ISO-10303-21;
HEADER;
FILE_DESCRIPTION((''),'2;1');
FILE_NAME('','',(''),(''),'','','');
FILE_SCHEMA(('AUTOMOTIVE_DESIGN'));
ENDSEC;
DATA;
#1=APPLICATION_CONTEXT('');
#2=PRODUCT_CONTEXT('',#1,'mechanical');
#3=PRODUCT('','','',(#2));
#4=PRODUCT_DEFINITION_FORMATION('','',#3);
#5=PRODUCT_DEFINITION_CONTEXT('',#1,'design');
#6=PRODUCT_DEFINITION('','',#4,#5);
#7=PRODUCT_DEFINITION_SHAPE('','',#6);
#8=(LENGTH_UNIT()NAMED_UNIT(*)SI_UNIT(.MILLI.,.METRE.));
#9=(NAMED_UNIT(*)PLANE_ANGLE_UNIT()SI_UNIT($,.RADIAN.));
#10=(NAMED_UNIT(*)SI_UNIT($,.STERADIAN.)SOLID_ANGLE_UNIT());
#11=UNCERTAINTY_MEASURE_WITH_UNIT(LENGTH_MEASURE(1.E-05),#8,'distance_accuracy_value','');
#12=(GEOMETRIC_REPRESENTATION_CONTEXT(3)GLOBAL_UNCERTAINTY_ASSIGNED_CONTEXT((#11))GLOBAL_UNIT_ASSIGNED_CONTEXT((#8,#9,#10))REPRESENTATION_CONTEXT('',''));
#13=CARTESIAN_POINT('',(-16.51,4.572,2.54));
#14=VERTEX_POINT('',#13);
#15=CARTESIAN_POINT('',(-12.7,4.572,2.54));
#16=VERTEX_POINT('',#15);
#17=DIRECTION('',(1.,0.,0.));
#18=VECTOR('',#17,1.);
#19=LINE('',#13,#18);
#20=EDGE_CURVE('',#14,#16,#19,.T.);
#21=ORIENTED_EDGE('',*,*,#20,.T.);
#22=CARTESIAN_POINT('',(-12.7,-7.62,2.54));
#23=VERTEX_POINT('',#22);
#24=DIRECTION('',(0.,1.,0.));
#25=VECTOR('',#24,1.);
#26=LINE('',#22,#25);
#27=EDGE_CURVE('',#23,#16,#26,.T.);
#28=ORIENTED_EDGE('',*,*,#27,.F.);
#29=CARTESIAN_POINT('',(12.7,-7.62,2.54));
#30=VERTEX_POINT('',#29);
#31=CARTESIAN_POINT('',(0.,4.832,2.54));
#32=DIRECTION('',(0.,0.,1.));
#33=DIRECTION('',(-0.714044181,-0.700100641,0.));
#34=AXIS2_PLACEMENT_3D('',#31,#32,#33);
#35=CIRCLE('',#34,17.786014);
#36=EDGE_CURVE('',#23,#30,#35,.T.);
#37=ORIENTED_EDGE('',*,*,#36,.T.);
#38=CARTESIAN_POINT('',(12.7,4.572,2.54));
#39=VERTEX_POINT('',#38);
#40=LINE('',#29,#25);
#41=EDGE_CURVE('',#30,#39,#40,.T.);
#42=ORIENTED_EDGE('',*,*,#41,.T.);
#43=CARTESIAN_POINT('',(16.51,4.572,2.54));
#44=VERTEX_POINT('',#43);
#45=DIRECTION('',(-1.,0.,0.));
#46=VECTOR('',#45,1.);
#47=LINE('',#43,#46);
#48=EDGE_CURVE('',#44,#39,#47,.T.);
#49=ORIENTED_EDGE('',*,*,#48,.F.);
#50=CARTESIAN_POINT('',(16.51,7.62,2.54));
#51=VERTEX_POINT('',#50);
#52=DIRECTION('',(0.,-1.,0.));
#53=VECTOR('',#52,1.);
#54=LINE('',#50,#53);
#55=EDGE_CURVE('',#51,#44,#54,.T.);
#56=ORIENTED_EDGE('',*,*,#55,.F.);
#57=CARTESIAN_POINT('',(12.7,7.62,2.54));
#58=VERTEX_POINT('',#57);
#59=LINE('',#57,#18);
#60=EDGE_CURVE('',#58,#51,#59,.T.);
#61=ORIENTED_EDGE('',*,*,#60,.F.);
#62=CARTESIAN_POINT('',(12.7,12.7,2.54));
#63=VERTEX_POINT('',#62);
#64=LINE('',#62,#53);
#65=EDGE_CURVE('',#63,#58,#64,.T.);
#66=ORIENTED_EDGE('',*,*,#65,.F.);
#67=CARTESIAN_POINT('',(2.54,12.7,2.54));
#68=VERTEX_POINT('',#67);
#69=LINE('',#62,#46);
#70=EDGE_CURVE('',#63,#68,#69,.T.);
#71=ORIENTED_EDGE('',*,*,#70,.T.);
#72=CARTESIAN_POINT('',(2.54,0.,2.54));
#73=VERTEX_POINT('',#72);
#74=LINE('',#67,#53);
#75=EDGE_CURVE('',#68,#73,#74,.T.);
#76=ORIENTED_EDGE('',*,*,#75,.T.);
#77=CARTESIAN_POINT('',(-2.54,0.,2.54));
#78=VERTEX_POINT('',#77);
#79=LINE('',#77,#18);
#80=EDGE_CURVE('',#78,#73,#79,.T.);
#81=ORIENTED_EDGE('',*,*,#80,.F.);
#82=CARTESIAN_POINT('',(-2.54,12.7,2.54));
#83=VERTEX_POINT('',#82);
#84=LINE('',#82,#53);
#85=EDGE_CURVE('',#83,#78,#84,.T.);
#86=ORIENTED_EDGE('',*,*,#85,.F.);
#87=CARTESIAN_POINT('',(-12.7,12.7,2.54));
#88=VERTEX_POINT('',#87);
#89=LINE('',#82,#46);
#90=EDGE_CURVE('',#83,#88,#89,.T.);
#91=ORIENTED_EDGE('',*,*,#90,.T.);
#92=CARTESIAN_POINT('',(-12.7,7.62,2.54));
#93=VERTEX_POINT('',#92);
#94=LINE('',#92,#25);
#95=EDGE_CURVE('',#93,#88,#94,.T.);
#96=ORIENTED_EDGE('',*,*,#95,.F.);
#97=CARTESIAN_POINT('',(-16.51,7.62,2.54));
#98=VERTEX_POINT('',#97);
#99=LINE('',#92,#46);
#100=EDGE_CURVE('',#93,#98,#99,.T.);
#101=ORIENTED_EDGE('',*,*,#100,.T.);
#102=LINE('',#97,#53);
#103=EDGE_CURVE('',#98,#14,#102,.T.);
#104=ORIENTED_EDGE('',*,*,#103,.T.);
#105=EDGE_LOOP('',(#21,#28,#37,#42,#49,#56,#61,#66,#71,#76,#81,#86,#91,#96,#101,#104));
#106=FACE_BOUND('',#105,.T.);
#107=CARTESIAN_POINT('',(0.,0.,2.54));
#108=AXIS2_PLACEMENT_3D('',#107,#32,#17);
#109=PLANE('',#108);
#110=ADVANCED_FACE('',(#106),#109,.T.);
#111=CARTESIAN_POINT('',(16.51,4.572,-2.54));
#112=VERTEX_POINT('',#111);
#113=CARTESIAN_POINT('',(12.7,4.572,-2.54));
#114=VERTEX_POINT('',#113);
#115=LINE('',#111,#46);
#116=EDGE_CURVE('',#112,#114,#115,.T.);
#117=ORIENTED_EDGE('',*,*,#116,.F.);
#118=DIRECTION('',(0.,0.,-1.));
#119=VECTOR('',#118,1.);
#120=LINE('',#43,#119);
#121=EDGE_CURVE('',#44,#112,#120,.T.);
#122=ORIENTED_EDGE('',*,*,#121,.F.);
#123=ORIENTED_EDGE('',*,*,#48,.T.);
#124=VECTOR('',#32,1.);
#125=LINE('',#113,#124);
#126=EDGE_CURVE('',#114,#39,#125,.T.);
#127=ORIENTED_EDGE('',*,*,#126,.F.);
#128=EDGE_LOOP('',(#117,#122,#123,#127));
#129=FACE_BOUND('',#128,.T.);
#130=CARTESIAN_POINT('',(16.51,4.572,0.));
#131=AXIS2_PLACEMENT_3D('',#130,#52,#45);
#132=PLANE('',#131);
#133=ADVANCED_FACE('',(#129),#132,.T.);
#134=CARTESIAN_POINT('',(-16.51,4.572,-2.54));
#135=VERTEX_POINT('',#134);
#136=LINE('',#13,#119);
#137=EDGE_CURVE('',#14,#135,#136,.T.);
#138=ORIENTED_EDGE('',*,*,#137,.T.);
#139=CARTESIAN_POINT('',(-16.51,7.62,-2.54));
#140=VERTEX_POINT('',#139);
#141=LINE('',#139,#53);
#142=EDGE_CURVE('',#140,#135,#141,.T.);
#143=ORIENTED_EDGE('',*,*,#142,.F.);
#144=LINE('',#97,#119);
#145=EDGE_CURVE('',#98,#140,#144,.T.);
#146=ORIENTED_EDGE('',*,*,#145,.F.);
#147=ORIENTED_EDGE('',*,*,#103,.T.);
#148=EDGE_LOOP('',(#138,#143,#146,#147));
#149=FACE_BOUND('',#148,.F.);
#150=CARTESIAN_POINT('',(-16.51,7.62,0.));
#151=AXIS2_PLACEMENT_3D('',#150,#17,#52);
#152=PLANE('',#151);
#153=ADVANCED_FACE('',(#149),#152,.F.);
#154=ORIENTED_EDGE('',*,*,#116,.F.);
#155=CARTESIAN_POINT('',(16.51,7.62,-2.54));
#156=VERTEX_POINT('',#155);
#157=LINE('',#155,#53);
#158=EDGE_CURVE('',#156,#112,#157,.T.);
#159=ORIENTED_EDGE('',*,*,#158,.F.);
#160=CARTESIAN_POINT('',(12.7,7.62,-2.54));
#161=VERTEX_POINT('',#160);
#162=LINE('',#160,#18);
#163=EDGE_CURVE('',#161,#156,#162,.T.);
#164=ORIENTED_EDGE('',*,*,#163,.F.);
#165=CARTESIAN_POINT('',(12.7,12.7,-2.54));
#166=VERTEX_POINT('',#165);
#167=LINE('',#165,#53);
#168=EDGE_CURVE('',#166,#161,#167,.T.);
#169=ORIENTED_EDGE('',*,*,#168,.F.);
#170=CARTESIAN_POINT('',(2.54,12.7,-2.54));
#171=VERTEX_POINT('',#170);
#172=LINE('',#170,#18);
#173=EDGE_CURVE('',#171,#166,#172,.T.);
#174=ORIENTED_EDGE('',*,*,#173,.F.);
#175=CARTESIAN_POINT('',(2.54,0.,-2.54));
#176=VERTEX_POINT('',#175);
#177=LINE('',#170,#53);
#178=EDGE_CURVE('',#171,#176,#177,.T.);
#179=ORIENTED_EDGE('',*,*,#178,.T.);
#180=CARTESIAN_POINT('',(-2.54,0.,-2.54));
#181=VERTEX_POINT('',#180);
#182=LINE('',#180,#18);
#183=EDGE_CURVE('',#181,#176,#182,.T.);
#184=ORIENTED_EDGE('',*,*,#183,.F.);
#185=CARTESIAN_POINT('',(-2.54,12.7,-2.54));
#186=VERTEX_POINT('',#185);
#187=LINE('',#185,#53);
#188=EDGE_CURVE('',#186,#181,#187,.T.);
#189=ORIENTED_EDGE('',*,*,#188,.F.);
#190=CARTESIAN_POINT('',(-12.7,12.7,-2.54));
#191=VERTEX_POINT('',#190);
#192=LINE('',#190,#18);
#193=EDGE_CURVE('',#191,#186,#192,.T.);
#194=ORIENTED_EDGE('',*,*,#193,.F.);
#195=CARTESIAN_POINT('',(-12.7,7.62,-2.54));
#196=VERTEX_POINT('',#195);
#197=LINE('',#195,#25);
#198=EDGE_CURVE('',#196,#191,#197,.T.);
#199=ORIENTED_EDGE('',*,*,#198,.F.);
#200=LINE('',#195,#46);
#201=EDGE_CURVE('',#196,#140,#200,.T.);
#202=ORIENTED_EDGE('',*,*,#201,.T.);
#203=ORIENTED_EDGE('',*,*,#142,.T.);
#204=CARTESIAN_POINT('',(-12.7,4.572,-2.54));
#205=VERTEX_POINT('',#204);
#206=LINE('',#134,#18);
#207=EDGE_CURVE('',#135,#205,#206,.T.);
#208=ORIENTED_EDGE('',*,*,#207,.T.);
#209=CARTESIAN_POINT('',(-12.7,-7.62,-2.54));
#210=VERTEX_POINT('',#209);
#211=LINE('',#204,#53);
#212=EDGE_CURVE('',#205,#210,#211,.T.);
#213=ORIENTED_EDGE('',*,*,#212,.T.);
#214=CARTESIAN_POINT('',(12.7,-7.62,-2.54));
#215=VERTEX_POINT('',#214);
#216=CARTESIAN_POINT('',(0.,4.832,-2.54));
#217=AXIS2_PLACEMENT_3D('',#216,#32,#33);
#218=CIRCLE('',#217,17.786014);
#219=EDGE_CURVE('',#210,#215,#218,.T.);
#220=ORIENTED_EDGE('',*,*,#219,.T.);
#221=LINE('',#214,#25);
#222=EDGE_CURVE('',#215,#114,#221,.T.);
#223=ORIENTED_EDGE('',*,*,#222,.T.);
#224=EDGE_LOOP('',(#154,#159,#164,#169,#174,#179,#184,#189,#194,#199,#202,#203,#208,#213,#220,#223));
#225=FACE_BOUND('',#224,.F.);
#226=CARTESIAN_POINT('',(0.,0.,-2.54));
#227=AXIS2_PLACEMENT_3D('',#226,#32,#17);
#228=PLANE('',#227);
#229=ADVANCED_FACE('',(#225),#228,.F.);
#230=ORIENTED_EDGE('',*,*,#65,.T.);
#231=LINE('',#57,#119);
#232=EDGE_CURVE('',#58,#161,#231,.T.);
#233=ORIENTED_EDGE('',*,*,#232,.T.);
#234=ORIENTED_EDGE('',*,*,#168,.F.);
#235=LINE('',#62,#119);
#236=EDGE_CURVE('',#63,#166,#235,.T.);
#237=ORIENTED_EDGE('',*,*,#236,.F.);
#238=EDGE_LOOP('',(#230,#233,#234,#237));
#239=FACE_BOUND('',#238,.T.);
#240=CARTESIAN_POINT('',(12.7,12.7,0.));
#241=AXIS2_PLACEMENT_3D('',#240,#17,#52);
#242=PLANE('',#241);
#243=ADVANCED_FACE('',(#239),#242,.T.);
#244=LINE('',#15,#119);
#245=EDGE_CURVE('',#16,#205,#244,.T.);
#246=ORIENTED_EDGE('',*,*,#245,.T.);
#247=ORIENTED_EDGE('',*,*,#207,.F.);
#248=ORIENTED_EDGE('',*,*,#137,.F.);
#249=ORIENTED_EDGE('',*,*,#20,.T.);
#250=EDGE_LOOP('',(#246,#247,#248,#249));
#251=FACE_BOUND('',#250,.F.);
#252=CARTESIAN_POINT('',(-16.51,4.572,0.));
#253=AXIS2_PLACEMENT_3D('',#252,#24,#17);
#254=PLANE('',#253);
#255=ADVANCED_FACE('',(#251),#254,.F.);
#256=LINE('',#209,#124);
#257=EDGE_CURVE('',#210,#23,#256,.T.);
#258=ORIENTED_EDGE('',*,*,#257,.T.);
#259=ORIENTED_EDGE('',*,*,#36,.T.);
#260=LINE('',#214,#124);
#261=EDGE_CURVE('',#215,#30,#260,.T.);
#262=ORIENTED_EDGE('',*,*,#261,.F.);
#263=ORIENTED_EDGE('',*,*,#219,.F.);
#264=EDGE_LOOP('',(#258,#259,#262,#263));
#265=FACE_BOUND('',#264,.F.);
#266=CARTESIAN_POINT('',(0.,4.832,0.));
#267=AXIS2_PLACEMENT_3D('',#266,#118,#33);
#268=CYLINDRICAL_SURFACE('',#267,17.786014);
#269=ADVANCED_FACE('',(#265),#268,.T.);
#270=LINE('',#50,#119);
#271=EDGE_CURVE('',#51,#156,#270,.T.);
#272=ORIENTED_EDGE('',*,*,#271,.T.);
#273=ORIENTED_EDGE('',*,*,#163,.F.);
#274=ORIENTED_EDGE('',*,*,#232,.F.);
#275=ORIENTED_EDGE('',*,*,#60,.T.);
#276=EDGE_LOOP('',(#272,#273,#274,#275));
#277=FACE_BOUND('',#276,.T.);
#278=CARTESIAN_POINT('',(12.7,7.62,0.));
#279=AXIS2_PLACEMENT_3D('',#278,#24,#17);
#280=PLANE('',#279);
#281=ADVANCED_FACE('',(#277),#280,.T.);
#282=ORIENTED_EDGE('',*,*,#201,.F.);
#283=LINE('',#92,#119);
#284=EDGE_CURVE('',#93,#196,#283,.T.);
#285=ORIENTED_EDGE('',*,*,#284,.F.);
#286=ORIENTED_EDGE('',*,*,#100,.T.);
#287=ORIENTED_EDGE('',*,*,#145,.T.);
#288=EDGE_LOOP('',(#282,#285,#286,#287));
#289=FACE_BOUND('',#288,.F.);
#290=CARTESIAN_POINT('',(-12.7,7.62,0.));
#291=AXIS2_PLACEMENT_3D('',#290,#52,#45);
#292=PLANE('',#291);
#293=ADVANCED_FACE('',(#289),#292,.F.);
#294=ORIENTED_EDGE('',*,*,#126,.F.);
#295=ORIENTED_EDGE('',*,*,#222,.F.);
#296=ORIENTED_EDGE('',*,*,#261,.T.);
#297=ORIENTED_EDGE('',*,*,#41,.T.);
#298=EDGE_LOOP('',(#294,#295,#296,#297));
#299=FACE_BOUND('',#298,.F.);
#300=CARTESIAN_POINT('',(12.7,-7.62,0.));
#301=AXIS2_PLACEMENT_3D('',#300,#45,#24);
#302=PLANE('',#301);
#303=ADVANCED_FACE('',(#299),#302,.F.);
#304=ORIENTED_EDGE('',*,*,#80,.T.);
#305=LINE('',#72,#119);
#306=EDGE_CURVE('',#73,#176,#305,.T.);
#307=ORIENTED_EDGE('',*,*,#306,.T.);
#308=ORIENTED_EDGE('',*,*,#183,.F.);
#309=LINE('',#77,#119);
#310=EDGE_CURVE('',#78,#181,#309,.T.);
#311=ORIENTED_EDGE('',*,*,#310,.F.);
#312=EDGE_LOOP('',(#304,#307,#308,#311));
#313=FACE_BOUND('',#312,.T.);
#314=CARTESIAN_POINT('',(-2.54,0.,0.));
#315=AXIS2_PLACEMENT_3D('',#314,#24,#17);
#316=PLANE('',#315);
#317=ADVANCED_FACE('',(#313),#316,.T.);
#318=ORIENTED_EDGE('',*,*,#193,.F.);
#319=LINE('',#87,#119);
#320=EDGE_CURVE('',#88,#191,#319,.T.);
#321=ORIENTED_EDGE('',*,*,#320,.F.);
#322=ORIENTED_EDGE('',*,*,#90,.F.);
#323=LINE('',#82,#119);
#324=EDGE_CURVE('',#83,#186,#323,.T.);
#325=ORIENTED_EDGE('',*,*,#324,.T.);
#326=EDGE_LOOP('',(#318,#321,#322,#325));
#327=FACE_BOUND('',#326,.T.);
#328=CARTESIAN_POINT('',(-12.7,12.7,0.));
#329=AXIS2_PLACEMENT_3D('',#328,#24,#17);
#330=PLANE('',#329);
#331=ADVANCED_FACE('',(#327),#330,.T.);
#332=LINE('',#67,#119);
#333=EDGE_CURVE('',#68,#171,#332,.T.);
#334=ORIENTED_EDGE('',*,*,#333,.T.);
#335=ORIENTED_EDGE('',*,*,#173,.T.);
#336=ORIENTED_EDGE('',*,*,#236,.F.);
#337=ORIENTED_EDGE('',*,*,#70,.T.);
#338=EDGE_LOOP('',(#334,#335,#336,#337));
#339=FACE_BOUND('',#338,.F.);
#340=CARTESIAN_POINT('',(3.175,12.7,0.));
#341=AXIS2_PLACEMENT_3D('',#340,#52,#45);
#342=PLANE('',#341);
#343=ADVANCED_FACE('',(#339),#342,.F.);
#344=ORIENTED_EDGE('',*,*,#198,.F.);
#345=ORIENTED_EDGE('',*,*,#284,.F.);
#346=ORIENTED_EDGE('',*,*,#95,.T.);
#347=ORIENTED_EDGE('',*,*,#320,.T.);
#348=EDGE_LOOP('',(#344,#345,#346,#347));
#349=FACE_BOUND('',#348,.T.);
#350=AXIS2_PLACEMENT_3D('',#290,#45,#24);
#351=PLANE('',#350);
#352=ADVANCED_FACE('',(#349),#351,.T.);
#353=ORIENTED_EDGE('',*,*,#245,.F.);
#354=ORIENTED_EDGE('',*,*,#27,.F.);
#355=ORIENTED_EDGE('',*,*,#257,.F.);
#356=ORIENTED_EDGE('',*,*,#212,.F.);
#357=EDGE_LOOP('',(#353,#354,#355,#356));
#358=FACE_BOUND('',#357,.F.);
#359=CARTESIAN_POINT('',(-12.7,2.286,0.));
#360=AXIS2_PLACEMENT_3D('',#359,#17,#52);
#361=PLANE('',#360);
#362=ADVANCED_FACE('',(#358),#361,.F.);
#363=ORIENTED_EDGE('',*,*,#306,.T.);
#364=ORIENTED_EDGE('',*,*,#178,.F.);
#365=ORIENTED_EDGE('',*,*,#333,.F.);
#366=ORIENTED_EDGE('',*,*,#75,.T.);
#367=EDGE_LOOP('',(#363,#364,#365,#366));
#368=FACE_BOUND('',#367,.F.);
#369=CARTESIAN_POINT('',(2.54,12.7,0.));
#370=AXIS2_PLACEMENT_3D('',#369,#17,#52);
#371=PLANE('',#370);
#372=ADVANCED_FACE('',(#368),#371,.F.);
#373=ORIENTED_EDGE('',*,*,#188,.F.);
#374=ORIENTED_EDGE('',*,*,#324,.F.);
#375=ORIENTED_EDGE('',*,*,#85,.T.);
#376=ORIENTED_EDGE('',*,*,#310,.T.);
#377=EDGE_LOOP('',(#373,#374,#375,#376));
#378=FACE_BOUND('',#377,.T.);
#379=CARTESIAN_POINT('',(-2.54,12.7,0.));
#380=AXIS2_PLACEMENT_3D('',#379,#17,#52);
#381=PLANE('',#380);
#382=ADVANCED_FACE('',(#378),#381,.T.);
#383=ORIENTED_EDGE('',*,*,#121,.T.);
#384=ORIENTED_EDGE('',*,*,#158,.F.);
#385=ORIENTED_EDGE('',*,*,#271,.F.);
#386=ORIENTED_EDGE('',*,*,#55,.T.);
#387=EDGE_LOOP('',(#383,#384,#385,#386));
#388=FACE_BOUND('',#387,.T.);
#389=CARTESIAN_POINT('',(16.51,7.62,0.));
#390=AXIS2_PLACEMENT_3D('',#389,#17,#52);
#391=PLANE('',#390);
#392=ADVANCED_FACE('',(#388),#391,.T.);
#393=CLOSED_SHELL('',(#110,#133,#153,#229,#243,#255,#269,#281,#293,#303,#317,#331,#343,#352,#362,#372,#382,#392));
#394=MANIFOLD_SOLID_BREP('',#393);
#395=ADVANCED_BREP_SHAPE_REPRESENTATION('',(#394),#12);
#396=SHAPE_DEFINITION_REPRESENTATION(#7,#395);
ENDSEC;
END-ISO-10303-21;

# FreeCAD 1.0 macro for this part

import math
import FreeCAD as App
import Part
import Sketcher
Q = App.Units.Quantity

doc = App.newDocument("Part")
body = doc.addObject("PartDesign::Body", "Body")

sketch1 = body.newObject("Sketcher::SketchObject", "Sketch")
sketch1.AttachmentSupport = (doc.getObject("XY_Plane"), [""])
sketch1.MapMode = "FlatFace"
sketch1.addGeometry(Part.LineSegment(App.Vector(-12.7, 4.6, 0), App.Vector(-12.7, -7.6, 0)), False)
sketch1.addGeometry(Part.ArcOfCircle(Part.Circle(App.Vector(0, 4.8, 0), App.Vector(0, 0, 1), 17.8), math.radians(-136), math.radians(-44)), False)
sketch1.addGeometry(Part.LineSegment(App.Vector(12.7, -7.6, 0), App.Vector(12.7, 4.6, 0)), False)
sketch1.addGeometry(Part.LineSegment(App.Vector(12.7, 4.6, 0), App.Vector(16.5, 4.6, 0)), False)
sketch1.addGeometry(Part.LineSegment(App.Vector(16.5, 4.6, 0), App.Vector(16.5, 7.6, 0)), False)
sketch1.addGeometry(Part.LineSegment(App.Vector(16.5, 7.6, 0), App.Vector(12.7, 7.6, 0)), False)
sketch1.addGeometry(Part.LineSegment(App.Vector(12.7, 7.6, 0), App.Vector(12.7, 12.7, 0)), False)
sketch1.addGeometry(Part.LineSegment(App.Vector(12.7, 12.7, 0), App.Vector(2.5, 12.7, 0)), False)
sketch1.addGeometry(Part.LineSegment(App.Vector(2.5, 12.7, 0), App.Vector(2.5, 0, 0)), False)
sketch1.addGeometry(Part.LineSegment(App.Vector(2.5, 0, 0), App.Vector(-2.5, 0, 0)), False)
sketch1.addGeometry(Part.LineSegment(App.Vector(-2.5, 0, 0), App.Vector(-2.5, 12.7, 0)), False)
sketch1.addGeometry(Part.LineSegment(App.Vector(-2.5, 12.7, 0), App.Vector(-12.7, 12.7, 0)), False)
sketch1.addGeometry(Part.LineSegment(App.Vector(-12.7, 12.7, 0), App.Vector(-12.7, 7.6, 0)), False)
sketch1.addGeometry(Part.LineSegment(App.Vector(-12.7, 7.6, 0), App.Vector(-16.5, 7.6, 0)), False)
sketch1.addGeometry(Part.LineSegment(App.Vector(-16.5, 7.6, 0), App.Vector(-16.5, 4.6, 0)), False)
sketch1.addGeometry(Part.LineSegment(App.Vector(-16.5, 4.6, 0), App.Vector(-12.7, 4.6, 0)), False)
sketch1.addConstraint(Sketcher.Constraint("Coincident", 0, 2, 1, 1))
sketch1.addConstraint(Sketcher.Constraint("Coincident", 1, 2, 2, 1))
sketch1.addConstraint(Sketcher.Constraint("Coincident", 2, 2, 3, 1))
sketch1.addConstraint(Sketcher.Constraint("Coincident", 3, 2, 4, 1))
sketch1.addConstraint(Sketcher.Constraint("Coincident", 4, 2, 5, 1))
sketch1.addConstraint(Sketcher.Constraint("Coincident", 5, 2, 6, 1))
sketch1.addConstraint(Sketcher.Constraint("Coincident", 6, 2, 7, 1))
sketch1.addConstraint(Sketcher.Constraint("Coincident", 7, 2, 8, 1))
sketch1.addConstraint(Sketcher.Constraint("Coincident", 8, 2, 9, 1))
sketch1.addConstraint(Sketcher.Constraint("Coincident", 9, 2, 10, 1))
sketch1.addConstraint(Sketcher.Constraint("Coincident", 10, 2, 11, 1))
sketch1.addConstraint(Sketcher.Constraint("Coincident", 11, 2, 12, 1))
sketch1.addConstraint(Sketcher.Constraint("Coincident", 12, 2, 13, 1))
sketch1.addConstraint(Sketcher.Constraint("Coincident", 13, 2, 14, 1))
sketch1.addConstraint(Sketcher.Constraint("Coincident", 14, 2, 15, 1))
sketch1.addConstraint(Sketcher.Constraint("Coincident", 15, 2, 0, 1))
sketch1.addConstraint(Sketcher.Constraint("Vertical", 0))
sketch1.addConstraint(Sketcher.Constraint("Vertical", 2))
sketch1.addConstraint(Sketcher.Constraint("Horizontal", 3))
sketch1.addConstraint(Sketcher.Constraint("Vertical", 4))
sketch1.addConstraint(Sketcher.Constraint("Horizontal", 5))
sketch1.addConstraint(Sketcher.Constraint("Vertical", 6))
sketch1.addConstraint(Sketcher.Constraint("Horizontal", 7))
sketch1.addConstraint(Sketcher.Constraint("Vertical", 8))
sketch1.addConstraint(Sketcher.Constraint("Horizontal", 9))
sketch1.addConstraint(Sketcher.Constraint("Vertical", 10))
sketch1.addConstraint(Sketcher.Constraint("Horizontal", 11))
sketch1.addConstraint(Sketcher.Constraint("Vertical", 12))
sketch1.addConstraint(Sketcher.Constraint("Horizontal", 13))
sketch1.addConstraint(Sketcher.Constraint("Vertical", 14))
sketch1.addConstraint(Sketcher.Constraint("Horizontal", 15))
sketch1.addConstraint(Sketcher.Constraint("Symmetric", 0, 2, 5, 2, -1, 1))
sketch1.addConstraint(Sketcher.Constraint("Symmetric", 8, 2, 9, 2, -1, 1))
sketch1.addConstraint(Sketcher.Constraint("Symmetric", 1, 2, 12, 2, -1, 1))
sketch1.addConstraint(Sketcher.Constraint("Symmetric", 0, 2, 1, 2, -2))
sketch1.addConstraint(Sketcher.Constraint("Symmetric", 3, 2, 14, 2, -2))
sketch1.addConstraint(Sketcher.Constraint("Horizontal", 7, 2, 10, 2))
sketch1.addConstraint(Sketcher.Constraint("Equal", 9, 6))
sketch1.addConstraint(Sketcher.Constraint("DistanceX", 9, 2, 9, 1, Q("0.2 in")))
sketch1.addConstraint(Sketcher.Constraint("DistanceY", 8, 2, 8, 1, Q("0.5 in")))
sketch1.addConstraint(Sketcher.Constraint("DistanceX", 0, 2, 1, 2, Q("1 in")))
sketch1.addConstraint(Sketcher.Constraint("DistanceX", 3, 1, 3, 2, Q("0.15 in")))
sketch1.addConstraint(Sketcher.Constraint("DistanceY", 4, 1, 4, 2, Q("0.12 in")))
sketch1.addConstraint(Sketcher.Constraint("Radius", 1, Q("17.786 mm")))
pad1 = body.newObject("PartDesign::Pad", "Pad")
pad1.Profile = sketch1
pad1.Length = Q("0.2 in")
pad1.Midplane = True

doc.recompute()
